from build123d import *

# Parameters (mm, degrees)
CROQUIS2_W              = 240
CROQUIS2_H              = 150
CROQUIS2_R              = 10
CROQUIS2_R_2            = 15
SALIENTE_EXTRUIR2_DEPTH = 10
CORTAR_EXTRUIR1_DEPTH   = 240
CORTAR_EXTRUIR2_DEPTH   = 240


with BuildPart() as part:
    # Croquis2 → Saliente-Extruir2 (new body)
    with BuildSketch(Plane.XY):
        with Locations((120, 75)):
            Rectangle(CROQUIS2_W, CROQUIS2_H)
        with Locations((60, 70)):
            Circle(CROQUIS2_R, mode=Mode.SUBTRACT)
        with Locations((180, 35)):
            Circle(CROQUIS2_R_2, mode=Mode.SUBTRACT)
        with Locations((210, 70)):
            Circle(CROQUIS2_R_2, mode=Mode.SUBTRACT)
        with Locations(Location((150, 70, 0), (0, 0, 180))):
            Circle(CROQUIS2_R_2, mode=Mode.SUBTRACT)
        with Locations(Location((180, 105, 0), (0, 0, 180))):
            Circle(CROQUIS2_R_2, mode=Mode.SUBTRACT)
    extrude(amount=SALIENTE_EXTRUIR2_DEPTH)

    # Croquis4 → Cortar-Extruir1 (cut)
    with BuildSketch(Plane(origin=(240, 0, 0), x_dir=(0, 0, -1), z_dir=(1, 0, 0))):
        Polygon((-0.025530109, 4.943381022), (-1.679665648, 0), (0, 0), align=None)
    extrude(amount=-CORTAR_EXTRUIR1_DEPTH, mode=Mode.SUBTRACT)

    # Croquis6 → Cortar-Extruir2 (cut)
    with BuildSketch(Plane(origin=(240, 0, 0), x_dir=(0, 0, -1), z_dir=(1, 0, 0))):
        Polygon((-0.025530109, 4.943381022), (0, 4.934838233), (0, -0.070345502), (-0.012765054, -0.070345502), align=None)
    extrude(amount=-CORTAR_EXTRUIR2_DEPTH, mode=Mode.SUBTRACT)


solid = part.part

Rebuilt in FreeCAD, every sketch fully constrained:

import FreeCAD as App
import Part
import Sketcher

V = App.Vector
Q = App.Units.Quantity

doc = App.newDocument("Part")
body = doc.addObject("PartDesign::Body", "Body")

sketch1 = body.newObject("Sketcher::SketchObject", "Sketch")
sketch1.AttachmentSupport = (doc.getObject("XY_Plane"), [""])
sketch1.MapMode = "FlatFace"
sketch1.addGeometry([
    Part.LineSegment(V(0, 150, 0), V(0, 0, 0)),
    Part.LineSegment(V(0, 0, 0), V(240, 0, 0)),
    Part.LineSegment(V(240, 0, 0), V(240, 150, 0)),
    Part.LineSegment(V(240, 150, 0), V(0, 150, 0)),
    Part.Circle(V(180, 35, 0), V(0, 0, 1), 15),
    Part.Circle(V(60, 70, 0), V(0, 0, 1), 10),
    Part.Circle(V(150, 70, 0), V(0, 0, 1), 15),
    Part.Circle(V(210, 70, 0), V(0, 0, 1), 15),
    Part.Circle(V(180, 105, 0), V(0, 0, 1), 15),
], False)
sketch1.addConstraint([
    Sketcher.Constraint("Coincident", 0, 2, 1, 1),
    Sketcher.Constraint("Coincident", 1, 2, 2, 1),
    Sketcher.Constraint("Coincident", 2, 2, 3, 1),
    Sketcher.Constraint("Coincident", 3, 2, 0, 1),
    Sketcher.Constraint("Vertical", 0),
    Sketcher.Constraint("Horizontal", 1),
    Sketcher.Constraint("Vertical", 2),
    Sketcher.Constraint("Horizontal", 3),
    Sketcher.Constraint("Coincident", 0, 2, -1, 1),
    Sketcher.Constraint("Equal", 4, 6),
    Sketcher.Constraint("Equal", 6, 7),
    Sketcher.Constraint("Equal", 7, 8),
    Sketcher.Constraint("Horizontal", 5, 3, 6, 3),
    Sketcher.Constraint("Horizontal", 6, 3, 7, 3),
    Sketcher.Constraint("Vertical", 4, 3, 8, 3),
    Sketcher.Constraint("Diameter", 4, Q("30 mm")),
    Sketcher.Constraint("Diameter", 5, Q("20 mm")),
    Sketcher.Constraint("DistanceX", 1, 1, 1, 2, Q("240 mm")),
    Sketcher.Constraint("DistanceY", 0, 2, 0, 1, Q("150 mm")),
    Sketcher.Constraint("DistanceX", -1, 1, 4, 3, Q("180 mm")),
    Sketcher.Constraint("DistanceY", -1, 1, 4, 3, Q("35 mm")),
    Sketcher.Constraint("DistanceX", -1, 1, 5, 3, Q("60 mm")),
    Sketcher.Constraint("DistanceY", -1, 1, 5, 3, Q("70 mm")),
    Sketcher.Constraint("DistanceX", -1, 1, 6, 3, Q("150 mm")),
    Sketcher.Constraint("DistanceX", -1, 1, 7, 3, Q("210 mm")),
    Sketcher.Constraint("DistanceY", -1, 1, 8, 3, Q("105 mm")),
])
pad1 = body.newObject("PartDesign::Pad", "Pad")
pad1.Profile = sketch1
pad1.Length = 10

sketch2 = body.newObject("Sketcher::SketchObject", "Sketch001")
sketch2.AttachmentSupport = (doc.getObject("YZ_Plane"), [""])
sketch2.MapMode = "FlatFace"
sketch2.AttachmentOffset = App.Placement(V(0, 0, 240), App.Rotation())
sketch2.addGeometry([
    Part.LineSegment(V(4.9, 0, 0), V(0, 1.7, 0)),
    Part.LineSegment(V(0, 1.7, 0), V(0, 0, 0)),
    Part.LineSegment(V(0, 0, 0), V(4.9, 0, 0)),
], False)
sketch2.addConstraint([
    Sketcher.Constraint("Coincident", 0, 2, 1, 1),
    Sketcher.Constraint("Coincident", 1, 2, 2, 1),
    Sketcher.Constraint("Coincident", 2, 2, 0, 1),
    Sketcher.Constraint("Vertical", 1),
    Sketcher.Constraint("Coincident", 1, 2, -1, 1),
    Sketcher.Constraint("Distance", 0, Q("5.21279 mm")),
    Sketcher.Constraint("DistanceY", 1, 2, 1, 1, Q("1.679666 mm")),
    Sketcher.Constraint("DistanceX", -1, 1, 2, 2, Q("4.943381 mm")),
])
pocket1 = body.newObject("PartDesign::Pocket", "Pocket")
pocket1.Profile = sketch2
pocket1.Length = 240

sketch3 = body.newObject("Sketcher::SketchObject", "Sketch002")
sketch3.AttachmentSupport = (doc.getObject("YZ_Plane"), [""])
sketch3.MapMode = "FlatFace"
sketch3.AttachmentOffset = App.Placement(V(0, 0, 240), App.Rotation())
sketch3.addGeometry([
    Part.LineSegment(V(4.935, 0, 0), V(4.943, 0.026, 0)),
    Part.LineSegment(V(4.943, 0.026, 0), V(-0.07, 0.013, 0)),
    Part.LineSegment(V(-0.07, 0.013, 0), V(-0.07, 0, 0)),
    Part.LineSegment(V(-0.07, 0, 0), V(4.935, 0, 0)),
], False)
sketch3.addConstraint([
    Sketcher.Constraint("Coincident", 0, 2, 1, 1),
    Sketcher.Constraint("Coincident", 1, 2, 2, 1),
    Sketcher.Constraint("Coincident", 2, 2, 3, 1),
    Sketcher.Constraint("Coincident", 3, 2, 0, 1),
    Sketcher.Constraint("Vertical", 2),
    Sketcher.Constraint("Horizontal", 3),
    Sketcher.Constraint("PointOnObject", 2, 2, -1),
    Sketcher.Constraint("Distance", 0, Q("0.026921 mm")),
    Sketcher.Constraint("DistanceX", 3, 1, 3, 2, Q("5.005184 mm")),
    Sketcher.Constraint("DistanceY", 2, 2, 2, 1, Q("0.012765 mm")),
    Sketcher.Constraint("DistanceX", -1, 1, 0, 2, Q("4.943381 mm")),
    Sketcher.Constraint("DistanceY", -1, 1, 0, 2, Q("0.02553 mm")),
])
pocket2 = body.newObject("PartDesign::Pocket", "Pocket001")
pocket2.Profile = sketch3
pocket2.Length = 240

doc.recompute()
